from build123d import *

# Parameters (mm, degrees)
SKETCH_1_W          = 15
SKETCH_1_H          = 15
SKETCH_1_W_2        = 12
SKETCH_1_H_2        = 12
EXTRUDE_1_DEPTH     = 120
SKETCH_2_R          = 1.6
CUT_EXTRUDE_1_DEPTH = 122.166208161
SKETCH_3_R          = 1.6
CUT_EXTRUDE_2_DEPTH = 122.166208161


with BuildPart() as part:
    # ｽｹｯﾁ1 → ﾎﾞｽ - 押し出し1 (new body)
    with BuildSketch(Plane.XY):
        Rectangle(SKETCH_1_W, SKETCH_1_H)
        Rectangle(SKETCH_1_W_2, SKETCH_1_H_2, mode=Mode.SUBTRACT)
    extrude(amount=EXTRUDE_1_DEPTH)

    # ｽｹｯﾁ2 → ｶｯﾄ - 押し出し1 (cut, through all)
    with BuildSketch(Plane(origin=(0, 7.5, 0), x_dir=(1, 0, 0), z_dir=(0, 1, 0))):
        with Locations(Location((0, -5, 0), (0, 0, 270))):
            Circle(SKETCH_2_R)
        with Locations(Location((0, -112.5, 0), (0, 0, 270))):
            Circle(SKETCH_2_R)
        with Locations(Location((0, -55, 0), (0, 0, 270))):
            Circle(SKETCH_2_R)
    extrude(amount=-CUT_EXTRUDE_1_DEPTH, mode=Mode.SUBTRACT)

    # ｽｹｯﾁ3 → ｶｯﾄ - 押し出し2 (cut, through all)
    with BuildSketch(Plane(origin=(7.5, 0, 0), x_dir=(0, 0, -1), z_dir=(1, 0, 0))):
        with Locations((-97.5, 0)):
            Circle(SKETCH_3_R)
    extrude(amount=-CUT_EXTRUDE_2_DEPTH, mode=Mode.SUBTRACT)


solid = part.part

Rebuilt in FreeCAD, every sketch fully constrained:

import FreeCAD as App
import Part
import Sketcher
from FreeCAD import Vector

doc = App.newDocument("Part")
body = doc.addObject("PartDesign::Body", "Body")

# Sketch on XY plane
sketch1 = body.newObject("Sketcher::SketchObject", "Sketch")
sketch1.AttachmentSupport = (doc.getObject("XY_Plane"), [""])
sketch1.MapMode = "FlatFace"
sketch1.addGeometry([
    Part.LineSegment(Vector(-8, 8, 0), Vector(-8, -8, 0)),  # 0
    Part.LineSegment(Vector(-8, -8, 0), Vector(8, -8, 0)),  # 1
    Part.LineSegment(Vector(8, -8, 0), Vector(8, 8, 0)),  # 2
    Part.LineSegment(Vector(8, 8, 0), Vector(-8, 8, 0)),  # 3
    Part.LineSegment(Vector(6, -6, 0), Vector(-6, -6, 0)),  # 4
    Part.LineSegment(Vector(-6, -6, 0), Vector(-6, 6, 0)),  # 5
    Part.LineSegment(Vector(-6, 6, 0), Vector(6, 6, 0)),  # 6
    Part.LineSegment(Vector(6, 6, 0), Vector(6, -6, 0)),  # 7
], False)
sketch1.addConstraint([
    Sketcher.Constraint("Coincident", 0, 2, 1, 1),
    Sketcher.Constraint("Coincident", 1, 2, 2, 1),
    Sketcher.Constraint("Coincident", 2, 2, 3, 1),
    Sketcher.Constraint("Coincident", 3, 2, 0, 1),
    Sketcher.Constraint("Coincident", 4, 2, 5, 1),
    Sketcher.Constraint("Coincident", 5, 2, 6, 1),
    Sketcher.Constraint("Coincident", 6, 2, 7, 1),
    Sketcher.Constraint("Coincident", 7, 2, 4, 1),
    Sketcher.Constraint("Vertical", 0),
    Sketcher.Constraint("Horizontal", 1),
    Sketcher.Constraint("Vertical", 2),
    Sketcher.Constraint("Horizontal", 3),
    Sketcher.Constraint("Horizontal", 4),
    Sketcher.Constraint("Vertical", 5),
    Sketcher.Constraint("Horizontal", 6),
    Sketcher.Constraint("Vertical", 7),
    Sketcher.Constraint("Symmetric", 0, 2, 2, 2, -1, 1),
    Sketcher.Constraint("Symmetric", 4, 2, 6, 2, -1, 1),
    Sketcher.Constraint("Equal", 3, 0),
    Sketcher.Constraint("Equal", 6, 5),
    Sketcher.Constraint("DistanceX", 1, 1, 1, 2, 15.0),
    Sketcher.Constraint("DistanceX", 4, 2, 4, 1, 12.0),
])
pad1 = body.newObject("PartDesign::Pad", "Pad")
pad1.Profile = sketch1
pad1.Length = 120

# Sketch on XZ plane
sketch2 = body.newObject("Sketcher::SketchObject", "Sketch001")
sketch2.AttachmentSupport = (doc.getObject("XZ_Plane"), [""])
sketch2.MapMode = "FlatFace"
sketch2.AttachmentOffset = App.Placement(Vector(0, 0, -7.5), App.Rotation())
sketch2.addGeometry([
    Part.Circle(Vector(0, 5, 0), Vector(0, 0, 1), 1.6),
    Part.Circle(Vector(0, 112.5, 0), Vector(0, 0, 1), 1.6),
    Part.Circle(Vector(0, 55, 0), Vector(0, 0, 1), 1.6),
], False)
sketch2.addConstraint([
    Sketcher.Constraint("Equal", 0, 1),
    Sketcher.Constraint("Equal", 1, 2),
    Sketcher.Constraint("PointOnObject", 0, 3, -2),
    Sketcher.Constraint("PointOnObject", 1, 3, -2),
    Sketcher.Constraint("PointOnObject", 2, 3, -2),
    Sketcher.Constraint("Diameter", 0, 3.2),
    Sketcher.Constraint("DistanceY", -1, 1, 0, 3, 5.0),
    Sketcher.Constraint("DistanceY", -1, 1, 2, 3, 55.0),
    Sketcher.Constraint("DistanceY", -1, 1, 1, 3, 112.5),
])
pocket1 = body.newObject("PartDesign::Pocket", "Pocket")
pocket1.Profile = sketch2
pocket1.Type = "ThroughAll"
pocket1.Reversed = True

# Sketch on YZ plane
sketch3 = body.newObject("Sketcher::SketchObject", "Sketch002")
sketch3.AttachmentSupport = (doc.getObject("YZ_Plane"), [""])
sketch3.MapMode = "FlatFace"
sketch3.AttachmentOffset = App.Placement(Vector(0, 0, 7.5), App.Rotation())
sketch3.addGeometry(Part.Circle(Vector(0, 97.5, 0), Vector(0, 0, 1), 1.6), False)
sketch3.addConstraint([
    Sketcher.Constraint("PointOnObject", 0, 3, -2),
    Sketcher.Constraint("Diameter", 0, 3.2),
    Sketcher.Constraint("DistanceY", -1, 1, 0, 3, 97.5),
])
pocket2 = body.newObject("PartDesign::Pocket", "Pocket001")
pocket2.Profile = sketch3
pocket2.Type = "ThroughAll"

doc.recompute()
